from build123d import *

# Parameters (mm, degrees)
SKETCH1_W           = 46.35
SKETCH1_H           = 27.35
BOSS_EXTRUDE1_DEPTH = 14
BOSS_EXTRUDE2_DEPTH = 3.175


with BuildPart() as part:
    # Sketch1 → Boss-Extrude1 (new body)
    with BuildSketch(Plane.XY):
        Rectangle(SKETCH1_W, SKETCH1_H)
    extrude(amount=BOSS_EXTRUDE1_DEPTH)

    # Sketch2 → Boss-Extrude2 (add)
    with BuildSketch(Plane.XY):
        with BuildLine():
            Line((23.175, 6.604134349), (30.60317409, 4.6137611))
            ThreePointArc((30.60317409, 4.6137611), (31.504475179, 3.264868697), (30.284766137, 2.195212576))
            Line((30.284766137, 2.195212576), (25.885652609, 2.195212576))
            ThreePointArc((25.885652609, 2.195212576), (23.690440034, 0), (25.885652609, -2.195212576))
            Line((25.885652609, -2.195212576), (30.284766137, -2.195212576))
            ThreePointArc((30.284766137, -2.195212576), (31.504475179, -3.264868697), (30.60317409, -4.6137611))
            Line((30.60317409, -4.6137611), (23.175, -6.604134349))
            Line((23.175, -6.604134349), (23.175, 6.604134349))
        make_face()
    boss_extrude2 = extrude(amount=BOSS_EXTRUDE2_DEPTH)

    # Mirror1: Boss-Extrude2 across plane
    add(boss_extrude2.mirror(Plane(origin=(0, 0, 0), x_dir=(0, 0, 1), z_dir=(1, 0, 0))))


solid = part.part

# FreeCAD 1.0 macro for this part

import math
import FreeCAD as App
import Part
import Sketcher
Q = App.Units.Quantity

doc = App.newDocument("Part")
body = doc.addObject("PartDesign::Body", "Body")

sketch1 = body.newObject("Sketcher::SketchObject", "Sketch")
sketch1.AttachmentSupport = (doc.getObject("XY_Plane"), [""])
sketch1.MapMode = "FlatFace"
sketch1.addGeometry([
    Part.LineSegment(App.Vector(-23.175, 13.675, 0), App.Vector(-23.175, -13.675, 0)),
    Part.LineSegment(App.Vector(-23.175, -13.675, 0), App.Vector(23.175, -13.675, 0)),
    Part.LineSegment(App.Vector(23.175, -13.675, 0), App.Vector(23.175, 13.675, 0)),
    Part.LineSegment(App.Vector(23.175, 13.675, 0), App.Vector(-23.175, 13.675, 0)),
], False)
sketch1.addConstraint([
    Sketcher.Constraint("Coincident", 0, 2, 1, 1),
    Sketcher.Constraint("Coincident", 1, 2, 2, 1),
    Sketcher.Constraint("Coincident", 2, 2, 3, 1),
    Sketcher.Constraint("Coincident", 3, 2, 0, 1),
    Sketcher.Constraint("Vertical", 0),
    Sketcher.Constraint("Horizontal", 1),
    Sketcher.Constraint("Vertical", 2),
    Sketcher.Constraint("Horizontal", 3),
    Sketcher.Constraint("Symmetric", 0, 2, 2, 2, -1, 1),
    Sketcher.Constraint("DistanceX", 1, 1, 1, 2, 46.35),
    Sketcher.Constraint("DistanceY", 0, 2, 0, 1, 27.35),
])
pad1 = body.newObject("PartDesign::Pad", "Pad")
pad1.Profile = sketch1
pad1.Length = 14

sketch2 = body.newObject("Sketcher::SketchObject", "Sketch001")
sketch2.AttachmentSupport = (doc.getObject("XY_Plane"), [""])
sketch2.MapMode = "FlatFace"
sketch2.addGeometry([
    Part.LineSegment(App.Vector(30.603174, 4.613761, 0), App.Vector(23.175, 6.604134, 0)),
    Part.LineSegment(App.Vector(23.175, 6.604134, 0), App.Vector(23.175, -6.604134, 0)),
    Part.LineSegment(App.Vector(23.175, -6.604134, 0), App.Vector(30.603174, -4.613761, 0)),
    Part.ArcOfCircle(Part.Circle(App.Vector(30.284766, -3.425446, 0), App.Vector(0, 0, 1), 1.230234), math.radians(-75), math.radians(90)),
    Part.LineSegment(App.Vector(30.284766, -2.195213, 0), App.Vector(25.885653, -2.195213, 0)),
    Part.ArcOfCircle(Part.Circle(App.Vector(25.885653, 0, 0), App.Vector(0, 0, 1), 2.195213), math.radians(90), math.radians(270)),
    Part.LineSegment(App.Vector(25.885653, 2.195213, 0), App.Vector(30.284766, 2.195213, 0)),
    Part.ArcOfCircle(Part.Circle(App.Vector(30.284766, 3.425446, 0), App.Vector(0, 0, 1), 1.230234), math.radians(-90), math.radians(75)),
], False)
sketch2.addConstraint([
    Sketcher.Constraint("Coincident", 0, 2, 1, 1),
    Sketcher.Constraint("Coincident", 1, 2, 2, 1),
    Sketcher.Constraint("Tangent", 2, 2, 3, 1),
    Sketcher.Constraint("Tangent", 3, 2, 4, 1),
    Sketcher.Constraint("Tangent", 4, 2, 5, 2),
    Sketcher.Constraint("Tangent", 5, 1, 6, 1),
    Sketcher.Constraint("Tangent", 6, 2, 7, 1),
    Sketcher.Constraint("Tangent", 7, 2, 0, 1),
    Sketcher.Constraint("Vertical", 1),
    Sketcher.Constraint("Horizontal", 4),
    Sketcher.Constraint("Horizontal", 6),
    Sketcher.Constraint("Equal", 3, 7),
    Sketcher.Constraint("Symmetric", 3, 3, 7, 3, -1),
    Sketcher.Constraint("Vertical", 2, 2, 7, 2),
    Sketcher.Constraint("Angle", 0, Q("165 deg")),
    Sketcher.Constraint("DistanceX", -1, 1, 0, 2, 23.175),
    Sketcher.Constraint("Radius", 3, 1.230234),
    Sketcher.Constraint("Radius", 5, 2.195213),
    Sketcher.Constraint("DistanceY", 1, 2, 1, 1, 13.208269),
    Sketcher.Constraint("DistanceX", 4, 2, 4, 1, 4.399114),
])
pad2 = body.newObject("PartDesign::Pad", "Pad001")
pad2.Profile = sketch2
pad2.Length = 3.175
doc.recompute()

mirrored = body.newObject("PartDesign::Mirrored", "Mirrored")
mirrored.Originals = [pad2]
mirrored.MirrorPlane = (doc.getObject("YZ_Plane"), [""])
body.Tip = mirrored

doc.recompute()
